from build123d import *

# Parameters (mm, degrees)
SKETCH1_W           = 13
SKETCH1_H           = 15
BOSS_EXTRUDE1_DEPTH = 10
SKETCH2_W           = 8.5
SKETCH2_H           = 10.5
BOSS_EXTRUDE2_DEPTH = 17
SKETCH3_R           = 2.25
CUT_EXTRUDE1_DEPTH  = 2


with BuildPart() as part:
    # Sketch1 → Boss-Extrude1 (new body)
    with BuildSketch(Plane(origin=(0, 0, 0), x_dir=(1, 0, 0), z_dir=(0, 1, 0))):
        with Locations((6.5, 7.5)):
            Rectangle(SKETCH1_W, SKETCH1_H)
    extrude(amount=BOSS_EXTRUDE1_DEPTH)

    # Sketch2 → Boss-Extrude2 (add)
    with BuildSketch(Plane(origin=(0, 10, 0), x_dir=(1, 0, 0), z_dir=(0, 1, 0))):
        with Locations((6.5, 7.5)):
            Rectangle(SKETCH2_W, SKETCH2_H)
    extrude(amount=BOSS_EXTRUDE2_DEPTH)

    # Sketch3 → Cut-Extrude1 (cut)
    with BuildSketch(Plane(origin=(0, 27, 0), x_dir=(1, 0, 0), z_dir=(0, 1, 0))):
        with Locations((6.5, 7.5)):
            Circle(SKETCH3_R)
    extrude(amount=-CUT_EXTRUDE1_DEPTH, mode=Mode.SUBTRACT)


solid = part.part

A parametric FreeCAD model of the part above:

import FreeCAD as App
import Part
import Sketcher

V = App.Vector
Q = App.Units.Quantity


def add_polygon(sketch, points):
    """Adds a closed chain of lines whose ends are joined by coincident constraints."""
    first, n = sketch.GeometryCount, len(points)
    for a, b in zip(points, points[1:] + points[:1]):
        sketch.addGeometry(Part.LineSegment(App.Vector(*a, 0), App.Vector(*b, 0)), False)
    for i in range(n):
        sketch.addConstraint(Sketcher.Constraint("Coincident", first + i, 2, first + (i + 1) % n, 1))

doc = App.newDocument("Part")
params = doc.addObject("Spreadsheet::Sheet", "Params")
for row, (alias, value) in enumerate([
    ("sketch1_width", "13 mm"),
    ("sketch1_height", "15 mm"),
    ("pad1_length", "10 mm"),
    ("sketch2_width", "8.5 mm"),
    ("sketch2_height", "10.5 mm"),
    ("pad2_length", "17 mm"),
    ("sketch3_diameter", "4.5 mm"),
    ("pocket1_length", "2 mm"),
], start=1):
    params.set(f"A{row}", alias)
    params.set(f"B{row}", "=" + value)
    params.setAlias(f"B{row}", alias)

body = doc.addObject("PartDesign::Body", "Body")

# Sketch on XZ plane
sketch1 = body.newObject("Sketcher::SketchObject", "Sketch")
sketch1.AttachmentSupport = (doc.getObject("XZ_Plane"), [""])
sketch1.MapMode = "FlatFace"
add_polygon(sketch1, [(0, -15), (0, 0), (13, 0), (13, -15)])  # lines 0-3
sketch1.addConstraint(Sketcher.Constraint("Vertical", 0))
sketch1.addConstraint(Sketcher.Constraint("Horizontal", 1))
sketch1.addConstraint(Sketcher.Constraint("Vertical", 2))
sketch1.addConstraint(Sketcher.Constraint("Horizontal", 3))
sketch1.addConstraint(Sketcher.Constraint("Coincident", 0, 2, -1, 1))
sketch1.addConstraint(Sketcher.Constraint("DistanceX", 1, 1, 1, 2, Q("13 mm")))
sketch1.addConstraint(Sketcher.Constraint("DistanceY", 0, 1, 0, 2, Q("15 mm")))
sketch1.setExpression("Constraints[9]", "Params.sketch1_width")
sketch1.setExpression("Constraints[10]", "Params.sketch1_height")
pad1 = body.newObject("PartDesign::Pad", "Pad")
pad1.Profile = sketch1
pad1.setExpression("Length", "Params.pad1_length")
pad1.Reversed = True

# Sketch on XZ plane
sketch2 = body.newObject("Sketcher::SketchObject", "Sketch001")
sketch2.AttachmentSupport = (doc.getObject("XZ_Plane"), [""])
sketch2.MapMode = "FlatFace"
sketch2.AttachmentOffset = App.Placement(V(0, 0, -10), App.Rotation())
add_polygon(sketch2, [(2, -13), (2, -2), (11, -2), (11, -13)])  # lines 0-3
sketch2.addConstraint(Sketcher.Constraint("Vertical", 0))
sketch2.addConstraint(Sketcher.Constraint("Horizontal", 1))
sketch2.addConstraint(Sketcher.Constraint("Vertical", 2))
sketch2.addConstraint(Sketcher.Constraint("Horizontal", 3))
sketch2.addConstraint(Sketcher.Constraint("DistanceX", 1, 1, 1, 2, Q("8.5 mm")))
sketch2.addConstraint(Sketcher.Constraint("DistanceY", 0, 1, 0, 2, Q("10.5 mm")))
sketch2.addConstraint(Sketcher.Constraint("DistanceX", -1, 1, 0, 2, Q("2.25 mm")))
sketch2.addConstraint(Sketcher.Constraint("DistanceY", 0, 2, -1, 1, Q("2.25 mm")))
sketch2.setExpression("Constraints[8]", "Params.sketch2_width")
sketch2.setExpression("Constraints[9]", "Params.sketch2_height")
pad2 = body.newObject("PartDesign::Pad", "Pad001")
pad2.Profile = sketch2
pad2.setExpression("Length", "Params.pad2_length")
pad2.Reversed = True

# Sketch on XZ plane
sketch3 = body.newObject("Sketcher::SketchObject", "Sketch002")
sketch3.AttachmentSupport = (doc.getObject("XZ_Plane"), [""])
sketch3.MapMode = "FlatFace"
sketch3.AttachmentOffset = App.Placement(V(0, 0, -27), App.Rotation())
sketch3.addGeometry(Part.Circle(V(6.5, -7.5, 0), V(0, 0, 1), 2.2), False)
sketch3.addConstraint(Sketcher.Constraint("Diameter", 0, Q("4.5 mm")))
sketch3.addConstraint(Sketcher.Constraint("DistanceX", -1, 1, 0, 3, Q("6.5 mm")))
sketch3.addConstraint(Sketcher.Constraint("DistanceY", 0, 3, -1, 1, Q("7.5 mm")))
sketch3.setExpression("Constraints[0]", "Params.sketch3_diameter")
pocket1 = body.newObject("PartDesign::Pocket", "Pocket")
pocket1.Profile = sketch3
pocket1.setExpression("Length", "Params.pocket1_length")
pocket1.Reversed = True

doc.recompute()
